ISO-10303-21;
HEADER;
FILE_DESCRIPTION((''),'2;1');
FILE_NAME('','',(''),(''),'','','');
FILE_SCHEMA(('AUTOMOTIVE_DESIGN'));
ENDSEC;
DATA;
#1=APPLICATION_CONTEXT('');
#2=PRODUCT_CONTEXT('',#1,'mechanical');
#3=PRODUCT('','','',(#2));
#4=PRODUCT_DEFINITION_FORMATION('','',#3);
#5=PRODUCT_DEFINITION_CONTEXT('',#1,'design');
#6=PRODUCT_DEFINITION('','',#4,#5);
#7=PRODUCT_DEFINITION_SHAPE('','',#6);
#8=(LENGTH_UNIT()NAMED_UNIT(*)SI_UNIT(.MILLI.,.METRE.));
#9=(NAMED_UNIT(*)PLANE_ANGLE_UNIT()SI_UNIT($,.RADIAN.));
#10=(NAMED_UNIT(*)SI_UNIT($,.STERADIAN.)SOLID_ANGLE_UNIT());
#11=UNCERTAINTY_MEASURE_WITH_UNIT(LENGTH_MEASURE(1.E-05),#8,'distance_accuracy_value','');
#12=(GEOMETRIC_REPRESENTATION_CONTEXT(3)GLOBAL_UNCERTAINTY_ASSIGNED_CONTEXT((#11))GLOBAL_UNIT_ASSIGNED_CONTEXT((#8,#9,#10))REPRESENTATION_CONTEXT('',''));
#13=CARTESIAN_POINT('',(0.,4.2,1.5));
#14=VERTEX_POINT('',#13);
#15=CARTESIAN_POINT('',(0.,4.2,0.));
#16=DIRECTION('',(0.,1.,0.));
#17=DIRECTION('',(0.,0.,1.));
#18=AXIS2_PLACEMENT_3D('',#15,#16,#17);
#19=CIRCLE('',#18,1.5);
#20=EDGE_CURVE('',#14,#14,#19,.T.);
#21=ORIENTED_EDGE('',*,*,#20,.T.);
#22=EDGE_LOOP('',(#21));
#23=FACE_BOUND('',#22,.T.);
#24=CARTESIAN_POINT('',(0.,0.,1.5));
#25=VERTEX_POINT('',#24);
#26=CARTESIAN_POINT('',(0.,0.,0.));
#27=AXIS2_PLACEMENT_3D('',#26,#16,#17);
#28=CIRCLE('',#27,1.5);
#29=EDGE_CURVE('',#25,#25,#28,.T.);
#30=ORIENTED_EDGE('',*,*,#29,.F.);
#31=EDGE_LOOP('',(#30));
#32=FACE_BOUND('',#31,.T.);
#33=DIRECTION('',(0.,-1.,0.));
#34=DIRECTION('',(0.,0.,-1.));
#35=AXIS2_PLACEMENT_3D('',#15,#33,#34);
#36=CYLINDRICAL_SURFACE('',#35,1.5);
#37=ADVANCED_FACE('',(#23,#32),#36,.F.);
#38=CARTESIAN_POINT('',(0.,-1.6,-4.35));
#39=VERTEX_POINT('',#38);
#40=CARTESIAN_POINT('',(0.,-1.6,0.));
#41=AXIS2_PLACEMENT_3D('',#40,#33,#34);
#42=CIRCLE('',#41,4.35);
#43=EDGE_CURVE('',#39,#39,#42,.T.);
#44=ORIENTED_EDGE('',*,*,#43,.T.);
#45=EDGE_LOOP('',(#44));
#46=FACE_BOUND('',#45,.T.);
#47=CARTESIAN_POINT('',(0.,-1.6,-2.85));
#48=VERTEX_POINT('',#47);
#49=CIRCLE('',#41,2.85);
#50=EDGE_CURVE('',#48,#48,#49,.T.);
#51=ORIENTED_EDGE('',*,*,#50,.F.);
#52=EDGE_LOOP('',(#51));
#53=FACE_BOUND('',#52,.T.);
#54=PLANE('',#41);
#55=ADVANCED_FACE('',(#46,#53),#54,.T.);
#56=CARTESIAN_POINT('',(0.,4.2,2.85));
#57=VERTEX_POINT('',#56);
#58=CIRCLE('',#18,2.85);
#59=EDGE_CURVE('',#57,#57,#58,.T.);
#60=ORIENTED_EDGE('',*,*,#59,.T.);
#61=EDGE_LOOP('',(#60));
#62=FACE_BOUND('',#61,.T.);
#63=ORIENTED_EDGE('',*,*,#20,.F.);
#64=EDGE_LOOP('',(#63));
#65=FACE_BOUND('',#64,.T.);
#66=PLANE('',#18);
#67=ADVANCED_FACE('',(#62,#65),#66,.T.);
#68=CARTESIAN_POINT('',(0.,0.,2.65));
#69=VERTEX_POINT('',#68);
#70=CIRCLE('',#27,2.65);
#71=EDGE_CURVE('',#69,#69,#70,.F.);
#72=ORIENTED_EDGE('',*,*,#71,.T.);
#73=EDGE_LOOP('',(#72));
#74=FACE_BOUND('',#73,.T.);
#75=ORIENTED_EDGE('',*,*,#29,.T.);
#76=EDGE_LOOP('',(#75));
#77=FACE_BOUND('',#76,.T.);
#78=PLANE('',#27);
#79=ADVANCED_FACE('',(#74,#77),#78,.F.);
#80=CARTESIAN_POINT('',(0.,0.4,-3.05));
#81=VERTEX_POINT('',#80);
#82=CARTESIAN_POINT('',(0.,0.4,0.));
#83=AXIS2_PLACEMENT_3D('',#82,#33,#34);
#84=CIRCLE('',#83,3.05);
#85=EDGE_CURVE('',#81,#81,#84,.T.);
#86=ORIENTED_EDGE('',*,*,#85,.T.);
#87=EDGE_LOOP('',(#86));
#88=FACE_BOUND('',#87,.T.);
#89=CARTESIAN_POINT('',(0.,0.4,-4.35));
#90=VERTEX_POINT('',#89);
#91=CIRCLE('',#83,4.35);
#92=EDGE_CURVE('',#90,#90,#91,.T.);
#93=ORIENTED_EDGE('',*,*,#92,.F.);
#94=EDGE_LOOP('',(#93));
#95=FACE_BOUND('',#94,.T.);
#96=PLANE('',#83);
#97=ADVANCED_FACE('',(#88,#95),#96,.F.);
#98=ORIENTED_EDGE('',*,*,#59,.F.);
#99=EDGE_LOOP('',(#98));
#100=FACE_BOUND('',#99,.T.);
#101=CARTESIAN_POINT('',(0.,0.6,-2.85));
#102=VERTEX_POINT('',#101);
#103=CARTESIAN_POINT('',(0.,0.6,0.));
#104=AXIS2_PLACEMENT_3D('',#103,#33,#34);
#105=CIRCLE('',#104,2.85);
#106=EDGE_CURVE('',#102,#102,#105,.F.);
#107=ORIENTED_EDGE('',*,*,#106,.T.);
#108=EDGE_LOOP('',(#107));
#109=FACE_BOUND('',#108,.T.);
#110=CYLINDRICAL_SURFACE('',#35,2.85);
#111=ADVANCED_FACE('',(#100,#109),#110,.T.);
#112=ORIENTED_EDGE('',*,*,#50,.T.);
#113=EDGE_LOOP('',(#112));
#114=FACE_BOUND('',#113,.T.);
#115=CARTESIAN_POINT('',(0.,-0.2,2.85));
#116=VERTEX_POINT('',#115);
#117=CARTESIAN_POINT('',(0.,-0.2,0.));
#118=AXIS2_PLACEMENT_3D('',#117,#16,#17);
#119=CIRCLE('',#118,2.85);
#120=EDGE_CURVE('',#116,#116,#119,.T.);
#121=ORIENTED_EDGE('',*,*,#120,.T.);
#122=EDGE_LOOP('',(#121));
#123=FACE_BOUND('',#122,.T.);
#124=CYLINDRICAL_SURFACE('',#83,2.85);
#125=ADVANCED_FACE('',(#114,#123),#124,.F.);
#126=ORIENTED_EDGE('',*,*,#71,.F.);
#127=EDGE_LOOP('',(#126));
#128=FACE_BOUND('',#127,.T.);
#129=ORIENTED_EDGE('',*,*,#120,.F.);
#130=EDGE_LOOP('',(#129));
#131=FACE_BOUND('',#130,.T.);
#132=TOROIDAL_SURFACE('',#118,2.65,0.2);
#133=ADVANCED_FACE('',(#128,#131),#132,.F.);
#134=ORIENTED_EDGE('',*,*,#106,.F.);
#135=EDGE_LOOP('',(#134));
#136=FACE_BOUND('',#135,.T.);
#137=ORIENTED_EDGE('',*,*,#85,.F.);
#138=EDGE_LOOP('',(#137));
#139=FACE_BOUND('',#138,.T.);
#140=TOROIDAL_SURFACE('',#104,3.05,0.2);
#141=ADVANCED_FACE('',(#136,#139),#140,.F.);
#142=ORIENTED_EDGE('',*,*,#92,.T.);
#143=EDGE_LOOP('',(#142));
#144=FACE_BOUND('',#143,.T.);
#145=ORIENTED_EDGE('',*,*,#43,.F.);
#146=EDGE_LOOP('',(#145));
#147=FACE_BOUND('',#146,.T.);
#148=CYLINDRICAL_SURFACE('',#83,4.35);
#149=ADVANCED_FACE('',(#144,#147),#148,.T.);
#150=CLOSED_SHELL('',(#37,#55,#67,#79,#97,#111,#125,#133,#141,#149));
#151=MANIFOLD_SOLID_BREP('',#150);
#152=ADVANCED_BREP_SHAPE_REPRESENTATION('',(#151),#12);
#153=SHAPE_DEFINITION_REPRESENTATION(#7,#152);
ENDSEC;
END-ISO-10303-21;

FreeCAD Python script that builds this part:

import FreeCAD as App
import Part
import Sketcher

V = App.Vector
Q = App.Units.Quantity


def edges_at(feature, points):
    """Names of the edges that pass closest to the given points."""
    edges = feature.Shape.Edges
    near = lambda p: min(range(len(edges)), key=lambda i: edges[i].distToShape(Part.Vertex(*p))[0])
    return sorted({f"Edge{near(p) + 1}" for p in points})


def faces_at(feature, points):
    """Names of the faces that lie closest to the given points."""
    faces = feature.Shape.Faces
    near = lambda p: min(range(len(faces)), key=lambda i: faces[i].distToShape(Part.Vertex(*p))[0])
    return sorted({f"Face{near(p) + 1}" for p in points})

doc = App.newDocument("Part")
params = doc.addObject("Spreadsheet::Sheet", "Params")
for row, (alias, value) in enumerate([
    ("sketch1_diameter", "5.7 mm"),
    ("pad1_length", "4.2 mm"),
    ("thickness_wall", "1.35 mm"),
    ("sketch2_diameter", "8.7 mm"),
    ("sketch2_diameter2", "5.7 mm"),
    ("pad2_length", "1.6 mm"),
    ("pad2_length2", "0.4 mm"),
    ("fillet_radius", "0.2 mm"),
], start=1):
    params.set(f"A{row}", alias)
    params.set(f"B{row}", "=" + value)
    params.setAlias(f"B{row}", alias)

body = doc.addObject("PartDesign::Body", "Body")

# Sketch on XZ plane
sketch1 = body.newObject("Sketcher::SketchObject", "Sketch")
sketch1.AttachmentSupport = (doc.getObject("XZ_Plane"), [""])
sketch1.MapMode = "FlatFace"
sketch1.addGeometry(Part.Circle(V(0, 0, 0), V(0, 0, 1), 2.9), False)
sketch1.addConstraint([
    Sketcher.Constraint("Coincident", 0, 3, -1, 1),
    Sketcher.Constraint("Diameter", 0, Q("5.7 mm")),
])
sketch1.setExpression("Constraints[1]", "Params.sketch1_diameter")
pad1 = body.newObject("PartDesign::Pad", "Pad")
pad1.Profile = sketch1
pad1.setExpression("Length", "Params.pad1_length")
pad1.Reversed = True
doc.recompute()

thickness = body.newObject("PartDesign::Thickness", "Thickness")
thickness.Base = (pad1, faces_at(pad1, [(0, 4.2, 0), (0, 0, 0)]))
thickness.setExpression("Value", "Params.thickness_wall")
thickness.Reversed = True
thickness.Join = "Intersection"

# Sketch on XZ plane
sketch2 = body.newObject("Sketcher::SketchObject", "Sketch001")
sketch2.AttachmentSupport = (doc.getObject("XZ_Plane"), [""])
sketch2.MapMode = "FlatFace"
sketch2.addGeometry([
    Part.Circle(V(0, 0, 0), V(0, 0, 1), 4.3),
    Part.Circle(V(0, 0, 0), V(0, 0, 1), 2.9),
], False)
sketch2.addConstraint([
    Sketcher.Constraint("Coincident", 0, 3, -1, 1),
    Sketcher.Constraint("Coincident", 1, 3, -1, 1),
    Sketcher.Constraint("Diameter", 0, Q("8.7 mm")),
    Sketcher.Constraint("Diameter", 1, Q("5.7 mm")),
])
sketch2.setExpression("Constraints[2]", "Params.sketch2_diameter")
sketch2.setExpression("Constraints[3]", "Params.sketch2_diameter2")
pad2 = body.newObject("PartDesign::Pad", "Pad001")
pad2.Profile = sketch2
pad2.Type = "TwoLengths"
pad2.setExpression("Length", "Params.pad2_length")
pad2.setExpression("Length2", "Params.pad2_length2")
doc.recompute()

fillet = body.newObject("PartDesign::Fillet", "Fillet")
fillet.Base = (pad2, edges_at(pad2, [(0, 0.4, -2.85), (0, 0, 2.85)]))
fillet.setExpression("Radius", "Params.fillet_radius")

doc.recompute()
